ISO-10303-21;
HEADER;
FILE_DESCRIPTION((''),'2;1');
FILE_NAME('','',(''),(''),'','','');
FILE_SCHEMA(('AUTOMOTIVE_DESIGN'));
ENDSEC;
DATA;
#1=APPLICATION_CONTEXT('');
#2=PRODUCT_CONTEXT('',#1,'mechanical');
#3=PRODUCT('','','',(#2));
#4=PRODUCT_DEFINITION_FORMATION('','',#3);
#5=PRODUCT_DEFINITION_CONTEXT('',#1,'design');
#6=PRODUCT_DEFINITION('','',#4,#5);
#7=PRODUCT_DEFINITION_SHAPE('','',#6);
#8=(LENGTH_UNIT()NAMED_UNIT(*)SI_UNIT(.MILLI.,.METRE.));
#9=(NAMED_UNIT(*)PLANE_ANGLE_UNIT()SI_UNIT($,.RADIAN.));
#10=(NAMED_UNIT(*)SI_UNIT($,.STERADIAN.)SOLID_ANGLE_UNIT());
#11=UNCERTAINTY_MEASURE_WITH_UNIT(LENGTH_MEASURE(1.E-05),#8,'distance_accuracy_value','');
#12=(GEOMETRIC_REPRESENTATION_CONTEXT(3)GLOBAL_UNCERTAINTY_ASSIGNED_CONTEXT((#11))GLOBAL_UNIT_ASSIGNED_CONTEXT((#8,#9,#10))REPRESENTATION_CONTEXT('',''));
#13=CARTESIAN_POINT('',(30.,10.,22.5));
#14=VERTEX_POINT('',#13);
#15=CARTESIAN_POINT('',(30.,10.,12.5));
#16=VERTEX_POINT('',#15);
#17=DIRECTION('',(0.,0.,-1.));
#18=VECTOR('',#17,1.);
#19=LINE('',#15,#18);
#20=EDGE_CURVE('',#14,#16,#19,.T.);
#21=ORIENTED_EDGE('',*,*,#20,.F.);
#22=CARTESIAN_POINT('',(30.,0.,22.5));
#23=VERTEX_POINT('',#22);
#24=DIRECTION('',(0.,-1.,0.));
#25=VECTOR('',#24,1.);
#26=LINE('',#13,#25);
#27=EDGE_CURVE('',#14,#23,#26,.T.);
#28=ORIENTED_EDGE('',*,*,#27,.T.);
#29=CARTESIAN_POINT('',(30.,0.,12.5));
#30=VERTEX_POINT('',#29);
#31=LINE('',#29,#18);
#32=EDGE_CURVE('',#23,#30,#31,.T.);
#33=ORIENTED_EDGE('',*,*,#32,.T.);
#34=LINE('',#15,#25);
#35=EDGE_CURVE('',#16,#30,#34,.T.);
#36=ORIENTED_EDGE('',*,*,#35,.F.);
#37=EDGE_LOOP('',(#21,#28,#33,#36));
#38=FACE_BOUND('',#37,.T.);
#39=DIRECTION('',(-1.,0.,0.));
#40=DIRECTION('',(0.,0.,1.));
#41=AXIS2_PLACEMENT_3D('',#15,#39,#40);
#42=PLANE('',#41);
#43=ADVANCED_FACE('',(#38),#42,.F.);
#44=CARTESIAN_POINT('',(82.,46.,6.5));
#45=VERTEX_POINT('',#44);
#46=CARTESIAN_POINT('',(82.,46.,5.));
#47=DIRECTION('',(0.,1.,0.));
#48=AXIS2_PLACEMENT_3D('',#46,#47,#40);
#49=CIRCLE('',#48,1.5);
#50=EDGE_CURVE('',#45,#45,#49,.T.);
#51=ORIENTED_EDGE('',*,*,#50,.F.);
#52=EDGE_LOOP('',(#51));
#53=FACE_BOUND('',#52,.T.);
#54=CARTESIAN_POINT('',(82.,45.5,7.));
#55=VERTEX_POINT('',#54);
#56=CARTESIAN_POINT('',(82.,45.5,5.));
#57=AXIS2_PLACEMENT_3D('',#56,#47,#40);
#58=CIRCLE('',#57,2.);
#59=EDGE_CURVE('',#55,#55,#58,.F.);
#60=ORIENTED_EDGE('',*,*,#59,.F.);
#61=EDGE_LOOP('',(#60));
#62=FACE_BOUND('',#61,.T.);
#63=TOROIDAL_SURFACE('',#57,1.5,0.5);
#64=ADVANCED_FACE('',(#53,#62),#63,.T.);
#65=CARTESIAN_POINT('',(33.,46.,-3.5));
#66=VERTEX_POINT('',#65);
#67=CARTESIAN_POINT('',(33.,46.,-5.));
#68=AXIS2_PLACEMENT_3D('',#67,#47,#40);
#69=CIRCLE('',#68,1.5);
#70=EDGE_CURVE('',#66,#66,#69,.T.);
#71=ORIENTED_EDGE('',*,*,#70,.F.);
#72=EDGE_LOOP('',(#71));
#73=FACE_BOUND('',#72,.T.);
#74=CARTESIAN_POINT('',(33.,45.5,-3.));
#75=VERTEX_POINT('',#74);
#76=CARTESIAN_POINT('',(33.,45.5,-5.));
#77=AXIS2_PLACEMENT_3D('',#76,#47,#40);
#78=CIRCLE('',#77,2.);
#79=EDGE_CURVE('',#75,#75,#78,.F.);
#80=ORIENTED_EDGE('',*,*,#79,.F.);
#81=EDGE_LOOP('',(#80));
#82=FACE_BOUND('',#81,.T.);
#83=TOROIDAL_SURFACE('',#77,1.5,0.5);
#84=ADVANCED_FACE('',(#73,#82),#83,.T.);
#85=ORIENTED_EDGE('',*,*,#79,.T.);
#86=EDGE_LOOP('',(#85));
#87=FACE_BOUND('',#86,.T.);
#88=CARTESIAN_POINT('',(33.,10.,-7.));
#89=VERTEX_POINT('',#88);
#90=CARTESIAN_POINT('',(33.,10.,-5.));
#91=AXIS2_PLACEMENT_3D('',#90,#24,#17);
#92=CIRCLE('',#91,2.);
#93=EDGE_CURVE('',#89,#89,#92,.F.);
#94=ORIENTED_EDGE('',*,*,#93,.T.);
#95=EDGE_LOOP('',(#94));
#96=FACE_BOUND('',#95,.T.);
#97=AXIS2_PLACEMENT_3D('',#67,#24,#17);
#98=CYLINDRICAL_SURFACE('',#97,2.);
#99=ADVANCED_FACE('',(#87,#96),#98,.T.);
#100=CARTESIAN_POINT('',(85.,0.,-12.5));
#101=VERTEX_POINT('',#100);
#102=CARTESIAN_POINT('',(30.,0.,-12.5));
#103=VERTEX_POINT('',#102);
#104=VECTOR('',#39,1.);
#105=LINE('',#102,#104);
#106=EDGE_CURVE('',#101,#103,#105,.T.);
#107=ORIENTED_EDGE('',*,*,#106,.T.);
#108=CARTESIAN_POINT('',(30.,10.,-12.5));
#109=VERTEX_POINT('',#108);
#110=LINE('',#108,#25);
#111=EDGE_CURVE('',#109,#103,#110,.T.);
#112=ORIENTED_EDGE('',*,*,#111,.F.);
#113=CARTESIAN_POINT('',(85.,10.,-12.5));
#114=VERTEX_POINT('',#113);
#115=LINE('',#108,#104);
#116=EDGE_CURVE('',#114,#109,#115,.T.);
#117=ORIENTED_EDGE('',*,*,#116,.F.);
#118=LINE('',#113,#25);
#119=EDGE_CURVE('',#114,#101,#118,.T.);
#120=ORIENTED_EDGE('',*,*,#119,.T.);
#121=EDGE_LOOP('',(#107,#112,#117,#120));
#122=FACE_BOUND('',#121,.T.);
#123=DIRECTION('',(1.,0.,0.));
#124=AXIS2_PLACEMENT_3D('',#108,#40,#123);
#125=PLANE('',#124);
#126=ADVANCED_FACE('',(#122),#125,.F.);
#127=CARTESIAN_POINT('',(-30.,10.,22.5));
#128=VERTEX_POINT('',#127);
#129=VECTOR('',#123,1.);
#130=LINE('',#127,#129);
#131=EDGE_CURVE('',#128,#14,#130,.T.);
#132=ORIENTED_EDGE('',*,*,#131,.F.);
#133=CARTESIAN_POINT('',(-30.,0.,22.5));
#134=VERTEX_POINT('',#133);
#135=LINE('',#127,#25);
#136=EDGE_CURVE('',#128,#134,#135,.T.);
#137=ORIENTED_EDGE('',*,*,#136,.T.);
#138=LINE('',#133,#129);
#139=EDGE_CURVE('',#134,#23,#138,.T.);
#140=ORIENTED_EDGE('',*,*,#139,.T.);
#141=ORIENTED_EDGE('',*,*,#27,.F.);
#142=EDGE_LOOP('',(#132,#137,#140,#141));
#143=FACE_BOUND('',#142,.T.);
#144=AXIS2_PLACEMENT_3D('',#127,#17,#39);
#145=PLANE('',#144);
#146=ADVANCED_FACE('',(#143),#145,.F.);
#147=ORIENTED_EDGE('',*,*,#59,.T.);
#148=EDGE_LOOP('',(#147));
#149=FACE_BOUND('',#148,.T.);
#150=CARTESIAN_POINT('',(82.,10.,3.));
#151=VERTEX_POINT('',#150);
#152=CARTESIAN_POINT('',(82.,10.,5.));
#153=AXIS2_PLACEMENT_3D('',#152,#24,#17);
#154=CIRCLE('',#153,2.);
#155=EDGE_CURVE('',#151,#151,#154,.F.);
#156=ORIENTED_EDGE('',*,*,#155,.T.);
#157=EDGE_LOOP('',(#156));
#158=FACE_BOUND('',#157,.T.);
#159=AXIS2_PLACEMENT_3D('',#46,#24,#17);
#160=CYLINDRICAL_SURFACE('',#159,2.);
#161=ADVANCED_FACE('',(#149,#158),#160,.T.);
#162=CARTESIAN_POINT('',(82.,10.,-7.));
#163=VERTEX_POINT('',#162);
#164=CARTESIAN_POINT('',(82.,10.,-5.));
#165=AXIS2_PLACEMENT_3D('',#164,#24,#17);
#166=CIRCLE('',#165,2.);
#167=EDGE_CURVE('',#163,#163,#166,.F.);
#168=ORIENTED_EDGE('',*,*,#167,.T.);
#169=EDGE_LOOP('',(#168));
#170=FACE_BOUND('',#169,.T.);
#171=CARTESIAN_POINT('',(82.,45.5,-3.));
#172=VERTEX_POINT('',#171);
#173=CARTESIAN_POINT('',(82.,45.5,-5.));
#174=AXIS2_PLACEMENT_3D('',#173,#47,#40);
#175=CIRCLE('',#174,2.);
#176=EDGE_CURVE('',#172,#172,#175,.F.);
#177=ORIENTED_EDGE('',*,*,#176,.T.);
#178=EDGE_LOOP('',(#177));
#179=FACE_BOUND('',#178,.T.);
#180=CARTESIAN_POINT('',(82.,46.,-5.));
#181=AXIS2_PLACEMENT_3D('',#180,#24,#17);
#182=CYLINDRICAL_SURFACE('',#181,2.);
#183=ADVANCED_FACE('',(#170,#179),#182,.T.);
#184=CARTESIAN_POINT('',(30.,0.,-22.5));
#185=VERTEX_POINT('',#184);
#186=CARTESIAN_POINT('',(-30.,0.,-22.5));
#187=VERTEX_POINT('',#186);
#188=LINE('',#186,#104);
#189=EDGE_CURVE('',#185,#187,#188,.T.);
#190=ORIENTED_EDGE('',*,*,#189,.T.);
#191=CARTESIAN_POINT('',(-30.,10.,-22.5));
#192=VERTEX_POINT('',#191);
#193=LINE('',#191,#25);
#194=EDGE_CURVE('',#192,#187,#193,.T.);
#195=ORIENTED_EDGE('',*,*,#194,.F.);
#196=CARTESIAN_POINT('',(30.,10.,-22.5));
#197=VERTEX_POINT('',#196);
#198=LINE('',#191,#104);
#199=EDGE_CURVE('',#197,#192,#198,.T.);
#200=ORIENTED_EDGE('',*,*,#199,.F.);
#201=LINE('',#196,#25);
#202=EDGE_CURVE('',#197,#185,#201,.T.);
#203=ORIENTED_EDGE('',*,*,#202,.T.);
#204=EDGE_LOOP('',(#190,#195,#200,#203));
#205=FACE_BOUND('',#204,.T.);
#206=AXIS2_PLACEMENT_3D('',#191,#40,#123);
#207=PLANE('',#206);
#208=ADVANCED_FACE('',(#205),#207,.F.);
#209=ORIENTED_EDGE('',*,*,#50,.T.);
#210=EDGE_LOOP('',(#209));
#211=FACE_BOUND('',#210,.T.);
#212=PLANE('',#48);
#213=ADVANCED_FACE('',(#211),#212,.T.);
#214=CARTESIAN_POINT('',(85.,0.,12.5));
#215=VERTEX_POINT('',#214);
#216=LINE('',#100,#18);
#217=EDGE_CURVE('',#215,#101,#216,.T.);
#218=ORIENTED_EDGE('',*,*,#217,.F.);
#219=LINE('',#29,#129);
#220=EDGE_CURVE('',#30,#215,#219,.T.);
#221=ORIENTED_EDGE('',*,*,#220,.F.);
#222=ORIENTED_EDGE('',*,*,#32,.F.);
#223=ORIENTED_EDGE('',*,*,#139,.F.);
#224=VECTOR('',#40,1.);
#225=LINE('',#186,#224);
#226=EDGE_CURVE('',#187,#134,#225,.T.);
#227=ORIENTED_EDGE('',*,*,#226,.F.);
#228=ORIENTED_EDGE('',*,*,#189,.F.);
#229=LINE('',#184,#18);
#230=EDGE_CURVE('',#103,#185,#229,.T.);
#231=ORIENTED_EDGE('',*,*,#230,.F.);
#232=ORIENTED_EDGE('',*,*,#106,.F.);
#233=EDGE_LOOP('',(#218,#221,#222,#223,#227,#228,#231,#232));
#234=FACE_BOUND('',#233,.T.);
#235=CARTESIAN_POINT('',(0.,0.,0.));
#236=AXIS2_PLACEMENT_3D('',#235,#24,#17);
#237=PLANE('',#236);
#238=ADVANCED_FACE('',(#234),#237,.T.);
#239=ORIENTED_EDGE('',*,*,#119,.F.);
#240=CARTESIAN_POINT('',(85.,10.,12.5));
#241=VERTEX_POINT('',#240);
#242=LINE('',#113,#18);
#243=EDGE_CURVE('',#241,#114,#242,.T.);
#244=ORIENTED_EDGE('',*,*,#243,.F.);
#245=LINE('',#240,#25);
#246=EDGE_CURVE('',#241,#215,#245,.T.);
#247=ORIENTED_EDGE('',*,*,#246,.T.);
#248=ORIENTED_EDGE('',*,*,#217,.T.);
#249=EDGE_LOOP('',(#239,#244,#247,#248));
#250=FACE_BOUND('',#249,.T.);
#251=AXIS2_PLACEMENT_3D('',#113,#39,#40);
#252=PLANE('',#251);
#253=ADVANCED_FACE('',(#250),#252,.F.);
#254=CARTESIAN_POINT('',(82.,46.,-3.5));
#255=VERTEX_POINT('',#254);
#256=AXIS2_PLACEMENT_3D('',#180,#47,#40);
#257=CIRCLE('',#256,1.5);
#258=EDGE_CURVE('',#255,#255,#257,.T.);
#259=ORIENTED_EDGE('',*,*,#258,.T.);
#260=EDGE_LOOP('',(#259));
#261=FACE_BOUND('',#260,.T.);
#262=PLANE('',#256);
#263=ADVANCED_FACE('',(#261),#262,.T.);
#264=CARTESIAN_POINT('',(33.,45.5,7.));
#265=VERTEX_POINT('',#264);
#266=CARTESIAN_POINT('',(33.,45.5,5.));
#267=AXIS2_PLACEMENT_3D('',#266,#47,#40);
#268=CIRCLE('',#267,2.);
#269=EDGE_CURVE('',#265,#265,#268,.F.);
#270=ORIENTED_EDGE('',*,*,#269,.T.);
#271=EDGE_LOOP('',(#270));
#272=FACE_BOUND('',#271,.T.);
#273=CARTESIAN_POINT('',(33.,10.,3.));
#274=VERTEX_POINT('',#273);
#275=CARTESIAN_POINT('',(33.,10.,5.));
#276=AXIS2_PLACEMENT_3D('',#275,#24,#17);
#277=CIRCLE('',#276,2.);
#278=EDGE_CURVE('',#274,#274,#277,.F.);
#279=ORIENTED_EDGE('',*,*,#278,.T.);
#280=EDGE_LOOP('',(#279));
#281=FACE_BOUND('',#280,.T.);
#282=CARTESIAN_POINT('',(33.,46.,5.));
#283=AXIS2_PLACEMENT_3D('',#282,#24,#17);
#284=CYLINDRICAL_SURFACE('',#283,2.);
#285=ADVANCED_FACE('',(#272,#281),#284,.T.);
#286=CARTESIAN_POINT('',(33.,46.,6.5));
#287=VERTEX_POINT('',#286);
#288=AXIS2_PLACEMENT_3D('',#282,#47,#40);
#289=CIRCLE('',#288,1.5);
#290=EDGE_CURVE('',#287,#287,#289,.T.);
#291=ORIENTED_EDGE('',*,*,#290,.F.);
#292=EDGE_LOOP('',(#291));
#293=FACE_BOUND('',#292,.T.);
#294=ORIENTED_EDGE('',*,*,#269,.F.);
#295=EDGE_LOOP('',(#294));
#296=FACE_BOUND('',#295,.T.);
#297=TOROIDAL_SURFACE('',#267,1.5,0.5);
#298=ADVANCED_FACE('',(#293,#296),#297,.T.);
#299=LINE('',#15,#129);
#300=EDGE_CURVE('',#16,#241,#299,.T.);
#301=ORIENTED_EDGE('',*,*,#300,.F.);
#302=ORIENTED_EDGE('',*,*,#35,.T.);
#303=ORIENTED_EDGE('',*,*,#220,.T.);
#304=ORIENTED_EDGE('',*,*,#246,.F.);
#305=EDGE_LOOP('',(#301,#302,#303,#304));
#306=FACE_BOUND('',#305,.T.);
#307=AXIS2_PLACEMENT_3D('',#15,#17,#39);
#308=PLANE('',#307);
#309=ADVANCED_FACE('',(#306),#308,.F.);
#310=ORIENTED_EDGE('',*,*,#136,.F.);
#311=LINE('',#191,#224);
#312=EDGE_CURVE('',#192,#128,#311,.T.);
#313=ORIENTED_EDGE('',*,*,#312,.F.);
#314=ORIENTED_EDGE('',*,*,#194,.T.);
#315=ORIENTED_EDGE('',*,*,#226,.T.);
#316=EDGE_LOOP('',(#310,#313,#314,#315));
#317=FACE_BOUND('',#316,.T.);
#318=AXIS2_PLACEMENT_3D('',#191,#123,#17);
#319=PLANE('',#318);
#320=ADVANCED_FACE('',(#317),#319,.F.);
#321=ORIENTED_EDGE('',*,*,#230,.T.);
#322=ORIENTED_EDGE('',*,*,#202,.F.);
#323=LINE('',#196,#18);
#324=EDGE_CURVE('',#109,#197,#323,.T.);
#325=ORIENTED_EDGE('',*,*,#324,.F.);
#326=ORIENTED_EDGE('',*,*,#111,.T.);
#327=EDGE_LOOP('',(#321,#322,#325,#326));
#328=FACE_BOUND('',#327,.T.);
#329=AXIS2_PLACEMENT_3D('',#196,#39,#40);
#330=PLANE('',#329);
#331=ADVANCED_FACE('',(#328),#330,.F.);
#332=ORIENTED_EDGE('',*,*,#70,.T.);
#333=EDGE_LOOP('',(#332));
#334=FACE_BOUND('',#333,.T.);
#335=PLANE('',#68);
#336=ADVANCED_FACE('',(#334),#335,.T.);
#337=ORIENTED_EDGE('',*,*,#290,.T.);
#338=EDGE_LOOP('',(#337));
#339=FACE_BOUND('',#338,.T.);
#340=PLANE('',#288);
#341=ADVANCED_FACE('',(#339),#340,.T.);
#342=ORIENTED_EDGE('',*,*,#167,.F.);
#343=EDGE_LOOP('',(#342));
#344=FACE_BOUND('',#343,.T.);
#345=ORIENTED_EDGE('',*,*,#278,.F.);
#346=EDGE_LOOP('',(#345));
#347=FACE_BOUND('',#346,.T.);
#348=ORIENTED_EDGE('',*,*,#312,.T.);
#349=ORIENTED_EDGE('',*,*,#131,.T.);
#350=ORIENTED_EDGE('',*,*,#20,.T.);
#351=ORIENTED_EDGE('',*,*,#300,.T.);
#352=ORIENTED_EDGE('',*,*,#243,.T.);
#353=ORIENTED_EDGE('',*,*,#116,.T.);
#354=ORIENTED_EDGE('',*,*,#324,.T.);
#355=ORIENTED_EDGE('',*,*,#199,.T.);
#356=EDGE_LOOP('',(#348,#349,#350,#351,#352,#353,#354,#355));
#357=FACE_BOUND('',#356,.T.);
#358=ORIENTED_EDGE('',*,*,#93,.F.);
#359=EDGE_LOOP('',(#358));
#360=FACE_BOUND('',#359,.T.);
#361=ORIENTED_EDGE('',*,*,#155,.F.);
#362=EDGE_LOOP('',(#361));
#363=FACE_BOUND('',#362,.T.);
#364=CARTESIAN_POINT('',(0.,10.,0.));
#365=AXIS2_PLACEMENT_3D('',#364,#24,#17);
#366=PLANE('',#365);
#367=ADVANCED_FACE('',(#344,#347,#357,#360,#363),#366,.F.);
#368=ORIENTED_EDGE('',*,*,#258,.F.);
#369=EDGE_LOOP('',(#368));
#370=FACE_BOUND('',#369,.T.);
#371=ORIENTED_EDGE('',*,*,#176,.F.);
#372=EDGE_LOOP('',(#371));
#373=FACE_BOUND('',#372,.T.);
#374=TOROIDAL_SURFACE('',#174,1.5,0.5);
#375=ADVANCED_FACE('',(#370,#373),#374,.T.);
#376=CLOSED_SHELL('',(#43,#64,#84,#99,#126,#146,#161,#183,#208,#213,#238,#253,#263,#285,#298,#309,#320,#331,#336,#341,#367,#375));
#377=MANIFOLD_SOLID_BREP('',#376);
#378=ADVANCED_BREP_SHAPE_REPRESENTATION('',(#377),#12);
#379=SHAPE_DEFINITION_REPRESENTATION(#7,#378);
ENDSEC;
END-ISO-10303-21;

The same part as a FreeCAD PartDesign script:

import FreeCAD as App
import Part
import Sketcher
Q = App.Units.Quantity


def edges_at(feature, points):
    """Names of the edges that pass closest to the given points."""
    edges = feature.Shape.Edges
    near = lambda p: min(range(len(edges)), key=lambda i: edges[i].distToShape(Part.Vertex(*p))[0])
    return sorted({f"Edge{near(p) + 1}" for p in points})


def add_polygon(sketch, points):
    """Adds a closed chain of lines whose ends are joined by coincident constraints."""
    first, n = sketch.GeometryCount, len(points)
    for a, b in zip(points, points[1:] + points[:1]):
        sketch.addGeometry(Part.LineSegment(App.Vector(*a, 0), App.Vector(*b, 0)), False)
    for i in range(n):
        sketch.addConstraint(Sketcher.Constraint("Coincident", first + i, 2, first + (i + 1) % n, 1))

doc = App.newDocument("Part")
body = doc.addObject("PartDesign::Body", "Body")

# Sketch on XZ plane
sketch1 = doc.addObject("Sketcher::SketchObject", "Sketch")
body.addObject(sketch1)
sketch1.AttachmentSupport = (doc.XZ_Plane, [""])
sketch1.MapMode = "FlatFace"
add_polygon(sketch1, [(30, 22), (30, 12), (85, 12), (85, -12), (30, -12), (30, -22), (-30, -22), (-30, 22)])  # lines 0-7
sketch1.addConstraint([
    Sketcher.Constraint("Vertical", 0),
    Sketcher.Constraint("Horizontal", 1),
    Sketcher.Constraint("Vertical", 2),
    Sketcher.Constraint("Horizontal", 3),
    Sketcher.Constraint("Vertical", 4),
    Sketcher.Constraint("Horizontal", 5),
    Sketcher.Constraint("Vertical", 6),
    Sketcher.Constraint("Horizontal", 7),
    Sketcher.Constraint("Symmetric", 4, 2, 6, 2, -1, 1),
    Sketcher.Constraint("Symmetric", 0, 2, 3, 2, -1),
    Sketcher.Constraint("DistanceX", 1, 1, 1, 2, Q("55 mm")),
    Sketcher.Constraint("DistanceX", 5, 2, 5, 1, Q("60 mm")),
    Sketcher.Constraint("DistanceY", 0, 2, 0, 1, Q("10 mm")),
    Sketcher.Constraint("DistanceY", 2, 2, 2, 1, Q("25 mm")),
])
pad1 = doc.addObject("PartDesign::Pad", "Pad")
body.addObject(pad1)
pad1.Profile = sketch1
pad1.Length = 10
pad1.Reversed = True

# Sketch on XZ plane
sketch2 = doc.addObject("Sketcher::SketchObject", "Sketch001")
body.addObject(sketch2)
sketch2.AttachmentSupport = (doc.XZ_Plane, [""])
sketch2.MapMode = "FlatFace"
sketch2.AttachmentOffset = App.Placement(App.Vector(0, 0, -10), App.Rotation())
sketch2.addGeometry([
    Part.Circle(App.Vector(33, -5, 0), App.Vector(0, 0, 1), 2),
    Part.Circle(App.Vector(33, 5, 0), App.Vector(0, 0, 1), 2),
    Part.Circle(App.Vector(82, -5, 0), App.Vector(0, 0, 1), 2),
    Part.Circle(App.Vector(82, 5, 0), App.Vector(0, 0, 1), 2),
], False)
sketch2.addConstraint([
    Sketcher.Constraint("Equal", 0, 1),
    Sketcher.Constraint("Equal", 1, 2),
    Sketcher.Constraint("Equal", 2, 3),
    Sketcher.Constraint("Symmetric", 0, 3, 1, 3, -1),
    Sketcher.Constraint("Symmetric", 2, 3, 3, 3, -1),
    Sketcher.Constraint("Horizontal", 0, 3, 2, 3),
    Sketcher.Constraint("Diameter", 0, Q("4 mm")),
    Sketcher.Constraint("DistanceX", -1, 1, 0, 3, Q("33 mm")),
    Sketcher.Constraint("DistanceY", 0, 3, -1, 1, Q("5 mm")),
    Sketcher.Constraint("DistanceX", -1, 1, 2, 3, Q("82 mm")),
])
pad2 = doc.addObject("PartDesign::Pad", "Pad001")
body.addObject(pad2)
pad2.Profile = sketch2
pad2.Length = 36
pad2.Reversed = True
doc.recompute()

fillet = doc.addObject("PartDesign::Fillet", "Fillet")
body.addObject(fillet)
fillet.Base = (pad2, edges_at(pad2, [
    (82, 46, -3),
    (33, 46, 7),
    (33, 46, -3),
    (82, 46, 7),
]))
fillet.Radius = 0.5

doc.recompute()
